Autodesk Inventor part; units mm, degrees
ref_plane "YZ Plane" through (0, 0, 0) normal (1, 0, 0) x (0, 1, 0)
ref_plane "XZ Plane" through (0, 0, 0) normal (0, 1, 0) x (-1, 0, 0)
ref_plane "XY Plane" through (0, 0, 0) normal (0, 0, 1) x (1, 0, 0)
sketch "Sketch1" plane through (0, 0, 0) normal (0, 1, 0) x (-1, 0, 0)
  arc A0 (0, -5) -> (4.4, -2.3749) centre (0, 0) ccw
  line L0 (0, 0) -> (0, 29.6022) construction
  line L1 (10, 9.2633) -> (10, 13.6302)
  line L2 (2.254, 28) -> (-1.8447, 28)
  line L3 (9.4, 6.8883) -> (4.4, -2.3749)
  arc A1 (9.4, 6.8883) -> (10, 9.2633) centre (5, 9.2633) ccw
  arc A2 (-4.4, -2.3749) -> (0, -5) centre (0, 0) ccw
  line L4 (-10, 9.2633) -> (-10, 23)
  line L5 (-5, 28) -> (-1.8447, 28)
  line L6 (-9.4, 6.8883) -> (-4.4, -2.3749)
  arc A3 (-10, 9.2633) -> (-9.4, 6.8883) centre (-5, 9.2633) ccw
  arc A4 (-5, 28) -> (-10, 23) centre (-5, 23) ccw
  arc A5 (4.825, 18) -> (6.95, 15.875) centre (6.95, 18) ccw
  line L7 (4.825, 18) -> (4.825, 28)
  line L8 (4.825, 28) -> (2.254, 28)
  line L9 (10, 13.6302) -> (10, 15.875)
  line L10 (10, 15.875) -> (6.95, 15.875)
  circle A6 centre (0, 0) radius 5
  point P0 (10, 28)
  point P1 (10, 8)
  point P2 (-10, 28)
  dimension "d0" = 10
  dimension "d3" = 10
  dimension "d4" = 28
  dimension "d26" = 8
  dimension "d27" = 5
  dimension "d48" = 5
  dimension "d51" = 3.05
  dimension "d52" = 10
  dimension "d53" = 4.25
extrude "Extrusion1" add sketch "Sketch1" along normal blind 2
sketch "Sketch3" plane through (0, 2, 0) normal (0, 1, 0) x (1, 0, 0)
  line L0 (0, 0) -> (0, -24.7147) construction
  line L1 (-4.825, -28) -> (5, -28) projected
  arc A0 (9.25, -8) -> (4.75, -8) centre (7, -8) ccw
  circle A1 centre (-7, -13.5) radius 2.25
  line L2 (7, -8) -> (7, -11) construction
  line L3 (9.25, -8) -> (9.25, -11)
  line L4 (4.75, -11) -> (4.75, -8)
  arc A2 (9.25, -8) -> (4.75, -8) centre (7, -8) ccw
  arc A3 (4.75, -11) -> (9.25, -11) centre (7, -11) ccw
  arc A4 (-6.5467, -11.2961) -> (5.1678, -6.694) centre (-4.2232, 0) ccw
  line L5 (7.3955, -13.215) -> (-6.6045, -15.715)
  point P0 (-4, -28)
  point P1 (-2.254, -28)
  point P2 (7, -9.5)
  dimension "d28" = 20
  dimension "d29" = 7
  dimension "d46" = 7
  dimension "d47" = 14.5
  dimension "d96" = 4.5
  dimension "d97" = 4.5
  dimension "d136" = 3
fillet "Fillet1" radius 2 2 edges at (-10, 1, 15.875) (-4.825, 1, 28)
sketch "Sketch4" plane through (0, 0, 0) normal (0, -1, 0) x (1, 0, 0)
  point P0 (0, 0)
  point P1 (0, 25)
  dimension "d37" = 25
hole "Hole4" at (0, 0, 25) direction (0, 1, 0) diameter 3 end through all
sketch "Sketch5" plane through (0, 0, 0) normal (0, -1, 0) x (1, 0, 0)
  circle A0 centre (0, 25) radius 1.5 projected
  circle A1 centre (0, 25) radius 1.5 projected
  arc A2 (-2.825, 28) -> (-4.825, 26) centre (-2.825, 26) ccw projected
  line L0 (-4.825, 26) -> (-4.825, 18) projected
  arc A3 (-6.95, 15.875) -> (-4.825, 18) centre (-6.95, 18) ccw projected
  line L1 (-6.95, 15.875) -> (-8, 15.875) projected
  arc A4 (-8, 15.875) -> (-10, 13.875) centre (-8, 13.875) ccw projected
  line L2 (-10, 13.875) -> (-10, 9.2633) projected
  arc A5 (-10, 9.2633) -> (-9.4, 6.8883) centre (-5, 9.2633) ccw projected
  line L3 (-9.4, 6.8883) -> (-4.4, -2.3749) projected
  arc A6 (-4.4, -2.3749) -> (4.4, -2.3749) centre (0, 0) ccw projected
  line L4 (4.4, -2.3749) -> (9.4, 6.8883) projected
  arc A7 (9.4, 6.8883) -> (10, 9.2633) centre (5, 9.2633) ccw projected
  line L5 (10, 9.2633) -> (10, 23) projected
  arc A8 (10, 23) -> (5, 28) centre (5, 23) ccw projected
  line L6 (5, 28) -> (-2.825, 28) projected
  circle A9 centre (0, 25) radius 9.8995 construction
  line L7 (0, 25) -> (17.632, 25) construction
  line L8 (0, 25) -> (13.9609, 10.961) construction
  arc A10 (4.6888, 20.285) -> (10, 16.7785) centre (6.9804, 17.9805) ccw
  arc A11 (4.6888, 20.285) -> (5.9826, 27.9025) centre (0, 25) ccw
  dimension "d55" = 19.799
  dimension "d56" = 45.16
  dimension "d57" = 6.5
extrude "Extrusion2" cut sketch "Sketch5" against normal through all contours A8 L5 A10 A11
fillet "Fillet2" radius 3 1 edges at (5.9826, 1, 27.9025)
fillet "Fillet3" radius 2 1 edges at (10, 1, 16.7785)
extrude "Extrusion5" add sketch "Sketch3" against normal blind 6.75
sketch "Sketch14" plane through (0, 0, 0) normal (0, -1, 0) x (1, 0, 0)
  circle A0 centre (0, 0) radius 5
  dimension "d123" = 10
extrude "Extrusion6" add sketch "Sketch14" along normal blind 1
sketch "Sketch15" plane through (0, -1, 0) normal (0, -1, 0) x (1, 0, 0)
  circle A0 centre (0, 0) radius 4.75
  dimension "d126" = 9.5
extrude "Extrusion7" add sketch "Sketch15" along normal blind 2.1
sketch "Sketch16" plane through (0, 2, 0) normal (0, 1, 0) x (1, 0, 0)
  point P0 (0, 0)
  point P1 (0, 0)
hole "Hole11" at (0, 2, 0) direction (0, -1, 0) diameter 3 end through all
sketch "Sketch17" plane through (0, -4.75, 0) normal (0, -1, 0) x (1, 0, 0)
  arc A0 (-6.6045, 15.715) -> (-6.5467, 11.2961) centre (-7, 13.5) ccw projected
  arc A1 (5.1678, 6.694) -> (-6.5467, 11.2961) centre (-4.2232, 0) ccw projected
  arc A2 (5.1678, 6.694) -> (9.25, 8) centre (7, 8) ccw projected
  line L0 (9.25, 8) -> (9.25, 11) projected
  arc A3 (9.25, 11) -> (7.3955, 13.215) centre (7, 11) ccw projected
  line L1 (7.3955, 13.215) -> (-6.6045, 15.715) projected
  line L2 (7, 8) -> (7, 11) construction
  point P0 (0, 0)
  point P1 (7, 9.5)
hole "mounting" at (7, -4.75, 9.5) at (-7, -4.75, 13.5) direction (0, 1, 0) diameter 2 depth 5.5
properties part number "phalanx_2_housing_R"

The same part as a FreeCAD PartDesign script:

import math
import FreeCAD as App
import Part
import Sketcher
from FreeCAD import Vector
Q = App.Units.Quantity


def edges_at(feature, points):
    """Names of the edges that pass closest to the given points."""
    edges = feature.Shape.Edges
    near = lambda p: min(range(len(edges)), key=lambda i: edges[i].distToShape(Part.Vertex(*p))[0])
    return sorted({f"Edge{near(p) + 1}" for p in points})

doc = App.newDocument("Part")
params = doc.addObject("Spreadsheet::Sheet", "Params")
for row, (alias, value) in enumerate([
    ("sketch1_radius", "5 mm"),
    ("sketch1_height", "10 mm"),
    ("sketch1_width", "3.05 mm"),
    ("pad1_length", "2 mm"),
    ("fillet_radius", "2 mm"),
    ("sketch2_diameter", "3 mm"),
    ("hole_diameter", "3 mm"),
    ("sketch3_radius", "3.25 mm"),
    ("sketch3_radius2", "5 mm"),
    ("fillet2_radius", "3 mm"),
    ("fillet3_radius", "2 mm"),
    ("sketch4_height", "3 mm"),
    ("sketch4_radius", "2.25 mm"),
    ("pad2_length", "6.75 mm"),
    ("sketch5_diameter", "10 mm"),
    ("pad3_length", "1 mm"),
    ("sketch6_diameter", "9.5 mm"),
    ("pad4_length", "2.1 mm"),
    ("sketch7_diameter", "3 mm"),
    ("hole2_diameter", "3 mm"),
    ("sketch8_diameter", "2 mm"),
    ("hole3_diameter", "2 mm"),
    ("hole3_depth", "5.5 mm"),
], start=1):
    params.set(f"A{row}", alias)
    params.set(f"B{row}", "=" + value)
    params.setAlias(f"B{row}", alias)

body = doc.addObject("PartDesign::Body", "Body")

sketch1 = body.newObject("Sketcher::SketchObject", "Sketch")
sketch1.AttachmentSupport = (doc.getObject("XZ_Plane"), [""])
sketch1.MapMode = "FlatFace"
sketch1.addGeometry([
    Part.ArcOfCircle(Part.Circle(Vector(0, 0, 0), Vector(0, 0, 1), 5), math.radians(-90), math.radians(-28)),
    Part.ArcOfCircle(Part.Circle(Vector(0, 0, 0), Vector(0, 0, 1), 5), math.radians(-152), math.radians(-90)),
    Part.LineSegment(Vector(-4.4, -2.4, 0), Vector(-9.4, 6.9, 0)),
    Part.ArcOfCircle(Part.Circle(Vector(-5, 9.3, 0), Vector(0, 0, 1), 5), math.radians(180), math.radians(208)),
    Part.LineSegment(Vector(-10, 9.3, 0), Vector(-10, 15.9, 0)),
    Part.LineSegment(Vector(-10, 15.9, 0), Vector(-7, 15.9, 0)),
    Part.ArcOfCircle(Part.Circle(Vector(-7, 18, 0), Vector(0, 0, 1), 2.1), math.radians(-90), math.radians(0)),
    Part.LineSegment(Vector(-4.8, 18, 0), Vector(-4.8, 28, 0)),
    Part.LineSegment(Vector(-4.8, 28, 0), Vector(5, 28, 0)),
    Part.ArcOfCircle(Part.Circle(Vector(5, 23, 0), Vector(0, 0, 1), 5), math.radians(0), math.radians(90)),
    Part.LineSegment(Vector(10, 23, 0), Vector(10, 9.3, 0)),
    Part.ArcOfCircle(Part.Circle(Vector(5, 9.3, 0), Vector(0, 0, 1), 5), math.radians(-28), math.radians(0)),
    Part.LineSegment(Vector(9.4, 6.9, 0), Vector(4.4, -2.4, 0)),
], False)
sketch1.addConstraint([
    Sketcher.Constraint("Tangent", 0, 1, 1, 2),
    Sketcher.Constraint("Tangent", 1, 1, 2, 1),
    Sketcher.Constraint("Tangent", 2, 2, 3, 2),
    Sketcher.Constraint("Tangent", 3, 1, 4, 1),
    Sketcher.Constraint("Coincident", 4, 2, 5, 1),
    Sketcher.Constraint("Tangent", 5, 2, 6, 1),
    Sketcher.Constraint("Tangent", 6, 2, 7, 1),
    Sketcher.Constraint("Coincident", 7, 2, 8, 1),
    Sketcher.Constraint("Tangent", 8, 2, 9, 2),
    Sketcher.Constraint("Tangent", 9, 1, 10, 1),
    Sketcher.Constraint("Tangent", 10, 2, 11, 2),
    Sketcher.Constraint("Tangent", 11, 1, 12, 1),
    Sketcher.Constraint("Tangent", 12, 2, 0, 2),
    Sketcher.Constraint("Vertical", 4),
    Sketcher.Constraint("Horizontal", 5),
    Sketcher.Constraint("Vertical", 7),
    Sketcher.Constraint("Horizontal", 8),
    Sketcher.Constraint("Vertical", 10),
    Sketcher.Constraint("Coincident", 0, 3, -1, 1),
    Sketcher.Constraint("Equal", 0, 1),
    Sketcher.Constraint("Equal", 1, 9),
    Sketcher.Constraint("Symmetric", 3, 1, 10, 2, -2),
    Sketcher.Constraint("PointOnObject", 0, 1, -2),
    Sketcher.Constraint("Horizontal", 2, 2, 11, 1),
    Sketcher.Constraint("Radius", 0, Q("5 mm")),
    Sketcher.Constraint("DistanceY", 7, 1, 7, 2, Q("10 mm")),
    Sketcher.Constraint("DistanceX", -1, 1, 9, 3, Q("5 mm")),
    Sketcher.Constraint("DistanceY", -1, 1, 7, 2, Q("28 mm")),
    Sketcher.Constraint("Radius", 6, Q("2.125 mm")),
    Sketcher.Constraint("DistanceX", 3, 3, 11, 3, Q("10 mm")),
    Sketcher.Constraint("DistanceX", 5, 1, 5, 2, Q("3.05 mm")),
    Sketcher.Constraint("DistanceX", 1, 1, -1, 1, Q("4.4 mm")),
])
sketch1.setExpression("Constraints[24]", "Params.sketch1_radius")
sketch1.setExpression("Constraints[25]", "Params.sketch1_height")
sketch1.setExpression("Constraints[30]", "Params.sketch1_width")
pad1 = body.newObject("PartDesign::Pad", "Pad")
pad1.Profile = sketch1
pad1.setExpression("Length", "Params.pad1_length")
pad1.Reversed = True
doc.recompute()

fillet = body.newObject("PartDesign::Fillet", "Fillet")
fillet.Base = (pad1, edges_at(pad1, [(-10, 1, 15.875), (-4.825, 1, 28)]))
fillet.setExpression("Radius", "Params.fillet_radius")

sketch2 = body.newObject("Sketcher::SketchObject", "Sketch001")
sketch2.AttachmentSupport = (doc.getObject("XZ_Plane"), [""])
sketch2.MapMode = "FlatFace"
sketch2.addGeometry(Part.Circle(Vector(0, 25, 0), Vector(0, 0, 1), 1.5), False)
sketch2.addConstraint([
    Sketcher.Constraint("PointOnObject", 0, 3, -2),
    Sketcher.Constraint("Diameter", 0, Q("3 mm")),
    Sketcher.Constraint("DistanceY", -1, 1, 0, 3, Q("25 mm")),
])
sketch2.setExpression("Constraints[1]", "Params.sketch2_diameter")
doc.recompute()
hole = body.newObject("PartDesign::Hole", "Hole")
hole.Profile = sketch2
hole.ThreadType = "None"
hole.setExpression("Diameter", "Params.hole_diameter")
hole.DepthType = "ThroughAll"

sketch3 = body.newObject("Sketcher::SketchObject", "Sketch002")
sketch3.AttachmentSupport = (doc.getObject("XZ_Plane"), [""])
sketch3.MapMode = "FlatFace"
sketch3.addGeometry([
    Part.ArcOfCircle(Part.Circle(Vector(5, 23, 0), Vector(0, 0, 1), 5), math.radians(0), math.radians(79)),
    Part.ArcOfCircle(Part.Circle(Vector(0, 25, 0), Vector(0, 0, 1), 6.6), math.radians(-45), math.radians(26)),
    Part.ArcOfCircle(Part.Circle(Vector(7, 18, 0), Vector(0, 0, 1), 3.2), math.radians(135), math.radians(338)),
    Part.LineSegment(Vector(10, 16.8, 0), Vector(10, 23, 0)),
], False)
sketch3.addConstraint([
    Sketcher.Constraint("Coincident", 0, 2, 1, 2),
    Sketcher.Constraint("Tangent", 1, 1, 2, 1),
    Sketcher.Constraint("Coincident", 2, 2, 3, 1),
    Sketcher.Constraint("Tangent", 3, 2, 0, 1),
    Sketcher.Constraint("Vertical", 3),
    Sketcher.Constraint("PointOnObject", 1, 3, -2),
    Sketcher.Constraint("Radius", 2, Q("3.25 mm")),
    Sketcher.Constraint("Radius", 0, Q("5 mm")),
    Sketcher.Constraint("DistanceX", -1, 1, 0, 3, Q("5 mm")),
    Sketcher.Constraint("DistanceY", -1, 1, 0, 3, Q("23 mm")),
    Sketcher.Constraint("DistanceY", -1, 1, 1, 3, Q("25 mm")),
    Sketcher.Constraint("Radius", 1, Q("6.6495 mm")),
    Sketcher.Constraint("DistanceY", 3, 1, 3, 2, Q("6.2215 mm")),
])
sketch3.setExpression("Constraints[6]", "Params.sketch3_radius")
sketch3.setExpression("Constraints[7]", "Params.sketch3_radius2")
pocket1 = body.newObject("PartDesign::Pocket", "Pocket")
pocket1.Profile = sketch3
pocket1.Type = "ThroughAll"
doc.recompute()

fillet2 = body.newObject("PartDesign::Fillet", "Fillet001")
fillet2.Base = (pocket1, edges_at(pocket1, [(5.983, 1, 27.902)]))
fillet2.setExpression("Radius", "Params.fillet2_radius")
doc.recompute()

fillet3 = body.newObject("PartDesign::Fillet", "Fillet002")
fillet3.Base = (fillet2, edges_at(fillet2, [(10, 1, 16.779)]))
fillet3.setExpression("Radius", "Params.fillet3_radius")

sketch4 = body.newObject("Sketcher::SketchObject", "Sketch003")
sketch4.AttachmentSupport = (doc.getObject("XZ_Plane"), [""])
sketch4.MapMode = "FlatFace"
sketch4.AttachmentOffset = App.Placement(Vector(0, 0, -2), App.Rotation())
sketch4.addGeometry([
    Part.LineSegment(Vector(9.2, 11, 0), Vector(9.2, 8, 0)),
    Part.ArcOfCircle(Part.Circle(Vector(7, 8, 0), Vector(0, 0, 1), 2.2), math.radians(-145), math.radians(0)),
    Part.ArcOfCircle(Part.Circle(Vector(-4.2, 0, 0), Vector(0, 0, 1), 11.5), math.radians(35), math.radians(102)),
    Part.ArcOfCircle(Part.Circle(Vector(-7, 13.5, 0), Vector(0, 0, 1), 2.2), math.radians(80), math.radians(282)),
    Part.LineSegment(Vector(-6.6, 15.7, 0), Vector(7.4, 13.2, 0)),
    Part.ArcOfCircle(Part.Circle(Vector(7, 11, 0), Vector(0, 0, 1), 2.2), math.radians(0), math.radians(80)),
], False)
sketch4.addConstraint([
    Sketcher.Constraint("Tangent", 0, 2, 1, 2),
    Sketcher.Constraint("Tangent", 1, 1, 2, 1),
    Sketcher.Constraint("Tangent", 2, 2, 3, 2),
    Sketcher.Constraint("Tangent", 3, 1, 4, 1),
    Sketcher.Constraint("Tangent", 4, 2, 5, 2),
    Sketcher.Constraint("Tangent", 5, 1, 0, 1),
    Sketcher.Constraint("Vertical", 0),
    Sketcher.Constraint("Equal", 1, 3),
    Sketcher.Constraint("Equal", 3, 5),
    Sketcher.Constraint("PointOnObject", 2, 3, -1),
    Sketcher.Constraint("DistanceY", 0, 2, 0, 1, Q("3 mm")),
    Sketcher.Constraint("Radius", 1, Q("2.25 mm")),
    Sketcher.Constraint("DistanceX", -1, 1, 1, 3, Q("7 mm")),
    Sketcher.Constraint("DistanceX", 3, 3, -1, 1, Q("7 mm")),
    Sketcher.Constraint("DistanceY", -1, 1, 1, 3, Q("8 mm")),
    Sketcher.Constraint("DistanceY", -1, 1, 3, 3, Q("13.5 mm")),
])
sketch4.setExpression("Constraints[10]", "Params.sketch4_height")
sketch4.setExpression("Constraints[11]", "Params.sketch4_radius")
pad2 = body.newObject("PartDesign::Pad", "Pad001")
pad2.Profile = sketch4
pad2.setExpression("Length", "Params.pad2_length")

sketch5 = body.newObject("Sketcher::SketchObject", "Sketch004")
sketch5.AttachmentSupport = (doc.getObject("XZ_Plane"), [""])
sketch5.MapMode = "FlatFace"
sketch5.addGeometry(Part.Circle(Vector(0, 0, 0), Vector(0, 0, 1), 5), False)
sketch5.addConstraint([
    Sketcher.Constraint("Coincident", 0, 3, -1, 1),
    Sketcher.Constraint("Diameter", 0, Q("10 mm")),
])
sketch5.setExpression("Constraints[1]", "Params.sketch5_diameter")
pad3 = body.newObject("PartDesign::Pad", "Pad002")
pad3.Profile = sketch5
pad3.setExpression("Length", "Params.pad3_length")

sketch6 = body.newObject("Sketcher::SketchObject", "Sketch005")
sketch6.AttachmentSupport = (doc.getObject("XZ_Plane"), [""])
sketch6.MapMode = "FlatFace"
sketch6.AttachmentOffset = App.Placement(Vector(0, 0, 1), App.Rotation())
sketch6.addGeometry(Part.Circle(Vector(0, 0, 0), Vector(0, 0, 1), 4.8), False)
sketch6.addConstraint([
    Sketcher.Constraint("Coincident", 0, 3, -1, 1),
    Sketcher.Constraint("Diameter", 0, Q("9.5 mm")),
])
sketch6.setExpression("Constraints[1]", "Params.sketch6_diameter")
pad4 = body.newObject("PartDesign::Pad", "Pad003")
pad4.Profile = sketch6
pad4.setExpression("Length", "Params.pad4_length")

sketch7 = body.newObject("Sketcher::SketchObject", "Sketch006")
sketch7.AttachmentSupport = (doc.getObject("XZ_Plane"), [""])
sketch7.MapMode = "FlatFace"
sketch7.AttachmentOffset = App.Placement(Vector(0, 0, -2), App.Rotation())
sketch7.addGeometry(Part.Circle(Vector(0, 0, 0), Vector(0, 0, 1), 1.5), False)
sketch7.addConstraint([
    Sketcher.Constraint("Coincident", 0, 3, -1, 1),
    Sketcher.Constraint("Diameter", 0, Q("3 mm")),
])
sketch7.setExpression("Constraints[1]", "Params.sketch7_diameter")
doc.recompute()
hole2 = body.newObject("PartDesign::Hole", "Hole001")
hole2.Profile = sketch7
hole2.ThreadType = "None"
hole2.setExpression("Diameter", "Params.hole2_diameter")
hole2.DepthType = "ThroughAll"
hole2.Reversed = True

sketch8 = body.newObject("Sketcher::SketchObject", "Sketch007")
sketch8.AttachmentSupport = (doc.getObject("XZ_Plane"), [""])
sketch8.MapMode = "FlatFace"
sketch8.AttachmentOffset = App.Placement(Vector(0, 0, 4.75), App.Rotation())
sketch8.addGeometry([
    Part.Circle(Vector(7, 9.5, 0), Vector(0, 0, 1), 1),
    Part.Circle(Vector(-7, 13.5, 0), Vector(0, 0, 1), 1),
], False)
sketch8.addConstraint([
    Sketcher.Constraint("Equal", 0, 1),
    Sketcher.Constraint("Diameter", 0, Q("2 mm")),
    Sketcher.Constraint("DistanceX", -1, 1, 0, 3, Q("7 mm")),
    Sketcher.Constraint("DistanceX", 1, 3, -1, 1, Q("7 mm")),
    Sketcher.Constraint("DistanceY", 0, 3, 1, 3, Q("4 mm")),
    Sketcher.Constraint("DistanceY", -1, 1, 0, 3, Q("9.5 mm")),
])
sketch8.setExpression("Constraints[1]", "Params.sketch8_diameter")
doc.recompute()
hole3 = body.newObject("PartDesign::Hole", "Hole002")
hole3.Profile = sketch8
hole3.ThreadType = "None"
hole3.setExpression("Diameter", "Params.hole3_diameter")
hole3.DepthType = "Dimension"
hole3.setExpression("Depth", "Params.hole3_depth")
hole3.DrillPoint = "Flat"

doc.recompute()
